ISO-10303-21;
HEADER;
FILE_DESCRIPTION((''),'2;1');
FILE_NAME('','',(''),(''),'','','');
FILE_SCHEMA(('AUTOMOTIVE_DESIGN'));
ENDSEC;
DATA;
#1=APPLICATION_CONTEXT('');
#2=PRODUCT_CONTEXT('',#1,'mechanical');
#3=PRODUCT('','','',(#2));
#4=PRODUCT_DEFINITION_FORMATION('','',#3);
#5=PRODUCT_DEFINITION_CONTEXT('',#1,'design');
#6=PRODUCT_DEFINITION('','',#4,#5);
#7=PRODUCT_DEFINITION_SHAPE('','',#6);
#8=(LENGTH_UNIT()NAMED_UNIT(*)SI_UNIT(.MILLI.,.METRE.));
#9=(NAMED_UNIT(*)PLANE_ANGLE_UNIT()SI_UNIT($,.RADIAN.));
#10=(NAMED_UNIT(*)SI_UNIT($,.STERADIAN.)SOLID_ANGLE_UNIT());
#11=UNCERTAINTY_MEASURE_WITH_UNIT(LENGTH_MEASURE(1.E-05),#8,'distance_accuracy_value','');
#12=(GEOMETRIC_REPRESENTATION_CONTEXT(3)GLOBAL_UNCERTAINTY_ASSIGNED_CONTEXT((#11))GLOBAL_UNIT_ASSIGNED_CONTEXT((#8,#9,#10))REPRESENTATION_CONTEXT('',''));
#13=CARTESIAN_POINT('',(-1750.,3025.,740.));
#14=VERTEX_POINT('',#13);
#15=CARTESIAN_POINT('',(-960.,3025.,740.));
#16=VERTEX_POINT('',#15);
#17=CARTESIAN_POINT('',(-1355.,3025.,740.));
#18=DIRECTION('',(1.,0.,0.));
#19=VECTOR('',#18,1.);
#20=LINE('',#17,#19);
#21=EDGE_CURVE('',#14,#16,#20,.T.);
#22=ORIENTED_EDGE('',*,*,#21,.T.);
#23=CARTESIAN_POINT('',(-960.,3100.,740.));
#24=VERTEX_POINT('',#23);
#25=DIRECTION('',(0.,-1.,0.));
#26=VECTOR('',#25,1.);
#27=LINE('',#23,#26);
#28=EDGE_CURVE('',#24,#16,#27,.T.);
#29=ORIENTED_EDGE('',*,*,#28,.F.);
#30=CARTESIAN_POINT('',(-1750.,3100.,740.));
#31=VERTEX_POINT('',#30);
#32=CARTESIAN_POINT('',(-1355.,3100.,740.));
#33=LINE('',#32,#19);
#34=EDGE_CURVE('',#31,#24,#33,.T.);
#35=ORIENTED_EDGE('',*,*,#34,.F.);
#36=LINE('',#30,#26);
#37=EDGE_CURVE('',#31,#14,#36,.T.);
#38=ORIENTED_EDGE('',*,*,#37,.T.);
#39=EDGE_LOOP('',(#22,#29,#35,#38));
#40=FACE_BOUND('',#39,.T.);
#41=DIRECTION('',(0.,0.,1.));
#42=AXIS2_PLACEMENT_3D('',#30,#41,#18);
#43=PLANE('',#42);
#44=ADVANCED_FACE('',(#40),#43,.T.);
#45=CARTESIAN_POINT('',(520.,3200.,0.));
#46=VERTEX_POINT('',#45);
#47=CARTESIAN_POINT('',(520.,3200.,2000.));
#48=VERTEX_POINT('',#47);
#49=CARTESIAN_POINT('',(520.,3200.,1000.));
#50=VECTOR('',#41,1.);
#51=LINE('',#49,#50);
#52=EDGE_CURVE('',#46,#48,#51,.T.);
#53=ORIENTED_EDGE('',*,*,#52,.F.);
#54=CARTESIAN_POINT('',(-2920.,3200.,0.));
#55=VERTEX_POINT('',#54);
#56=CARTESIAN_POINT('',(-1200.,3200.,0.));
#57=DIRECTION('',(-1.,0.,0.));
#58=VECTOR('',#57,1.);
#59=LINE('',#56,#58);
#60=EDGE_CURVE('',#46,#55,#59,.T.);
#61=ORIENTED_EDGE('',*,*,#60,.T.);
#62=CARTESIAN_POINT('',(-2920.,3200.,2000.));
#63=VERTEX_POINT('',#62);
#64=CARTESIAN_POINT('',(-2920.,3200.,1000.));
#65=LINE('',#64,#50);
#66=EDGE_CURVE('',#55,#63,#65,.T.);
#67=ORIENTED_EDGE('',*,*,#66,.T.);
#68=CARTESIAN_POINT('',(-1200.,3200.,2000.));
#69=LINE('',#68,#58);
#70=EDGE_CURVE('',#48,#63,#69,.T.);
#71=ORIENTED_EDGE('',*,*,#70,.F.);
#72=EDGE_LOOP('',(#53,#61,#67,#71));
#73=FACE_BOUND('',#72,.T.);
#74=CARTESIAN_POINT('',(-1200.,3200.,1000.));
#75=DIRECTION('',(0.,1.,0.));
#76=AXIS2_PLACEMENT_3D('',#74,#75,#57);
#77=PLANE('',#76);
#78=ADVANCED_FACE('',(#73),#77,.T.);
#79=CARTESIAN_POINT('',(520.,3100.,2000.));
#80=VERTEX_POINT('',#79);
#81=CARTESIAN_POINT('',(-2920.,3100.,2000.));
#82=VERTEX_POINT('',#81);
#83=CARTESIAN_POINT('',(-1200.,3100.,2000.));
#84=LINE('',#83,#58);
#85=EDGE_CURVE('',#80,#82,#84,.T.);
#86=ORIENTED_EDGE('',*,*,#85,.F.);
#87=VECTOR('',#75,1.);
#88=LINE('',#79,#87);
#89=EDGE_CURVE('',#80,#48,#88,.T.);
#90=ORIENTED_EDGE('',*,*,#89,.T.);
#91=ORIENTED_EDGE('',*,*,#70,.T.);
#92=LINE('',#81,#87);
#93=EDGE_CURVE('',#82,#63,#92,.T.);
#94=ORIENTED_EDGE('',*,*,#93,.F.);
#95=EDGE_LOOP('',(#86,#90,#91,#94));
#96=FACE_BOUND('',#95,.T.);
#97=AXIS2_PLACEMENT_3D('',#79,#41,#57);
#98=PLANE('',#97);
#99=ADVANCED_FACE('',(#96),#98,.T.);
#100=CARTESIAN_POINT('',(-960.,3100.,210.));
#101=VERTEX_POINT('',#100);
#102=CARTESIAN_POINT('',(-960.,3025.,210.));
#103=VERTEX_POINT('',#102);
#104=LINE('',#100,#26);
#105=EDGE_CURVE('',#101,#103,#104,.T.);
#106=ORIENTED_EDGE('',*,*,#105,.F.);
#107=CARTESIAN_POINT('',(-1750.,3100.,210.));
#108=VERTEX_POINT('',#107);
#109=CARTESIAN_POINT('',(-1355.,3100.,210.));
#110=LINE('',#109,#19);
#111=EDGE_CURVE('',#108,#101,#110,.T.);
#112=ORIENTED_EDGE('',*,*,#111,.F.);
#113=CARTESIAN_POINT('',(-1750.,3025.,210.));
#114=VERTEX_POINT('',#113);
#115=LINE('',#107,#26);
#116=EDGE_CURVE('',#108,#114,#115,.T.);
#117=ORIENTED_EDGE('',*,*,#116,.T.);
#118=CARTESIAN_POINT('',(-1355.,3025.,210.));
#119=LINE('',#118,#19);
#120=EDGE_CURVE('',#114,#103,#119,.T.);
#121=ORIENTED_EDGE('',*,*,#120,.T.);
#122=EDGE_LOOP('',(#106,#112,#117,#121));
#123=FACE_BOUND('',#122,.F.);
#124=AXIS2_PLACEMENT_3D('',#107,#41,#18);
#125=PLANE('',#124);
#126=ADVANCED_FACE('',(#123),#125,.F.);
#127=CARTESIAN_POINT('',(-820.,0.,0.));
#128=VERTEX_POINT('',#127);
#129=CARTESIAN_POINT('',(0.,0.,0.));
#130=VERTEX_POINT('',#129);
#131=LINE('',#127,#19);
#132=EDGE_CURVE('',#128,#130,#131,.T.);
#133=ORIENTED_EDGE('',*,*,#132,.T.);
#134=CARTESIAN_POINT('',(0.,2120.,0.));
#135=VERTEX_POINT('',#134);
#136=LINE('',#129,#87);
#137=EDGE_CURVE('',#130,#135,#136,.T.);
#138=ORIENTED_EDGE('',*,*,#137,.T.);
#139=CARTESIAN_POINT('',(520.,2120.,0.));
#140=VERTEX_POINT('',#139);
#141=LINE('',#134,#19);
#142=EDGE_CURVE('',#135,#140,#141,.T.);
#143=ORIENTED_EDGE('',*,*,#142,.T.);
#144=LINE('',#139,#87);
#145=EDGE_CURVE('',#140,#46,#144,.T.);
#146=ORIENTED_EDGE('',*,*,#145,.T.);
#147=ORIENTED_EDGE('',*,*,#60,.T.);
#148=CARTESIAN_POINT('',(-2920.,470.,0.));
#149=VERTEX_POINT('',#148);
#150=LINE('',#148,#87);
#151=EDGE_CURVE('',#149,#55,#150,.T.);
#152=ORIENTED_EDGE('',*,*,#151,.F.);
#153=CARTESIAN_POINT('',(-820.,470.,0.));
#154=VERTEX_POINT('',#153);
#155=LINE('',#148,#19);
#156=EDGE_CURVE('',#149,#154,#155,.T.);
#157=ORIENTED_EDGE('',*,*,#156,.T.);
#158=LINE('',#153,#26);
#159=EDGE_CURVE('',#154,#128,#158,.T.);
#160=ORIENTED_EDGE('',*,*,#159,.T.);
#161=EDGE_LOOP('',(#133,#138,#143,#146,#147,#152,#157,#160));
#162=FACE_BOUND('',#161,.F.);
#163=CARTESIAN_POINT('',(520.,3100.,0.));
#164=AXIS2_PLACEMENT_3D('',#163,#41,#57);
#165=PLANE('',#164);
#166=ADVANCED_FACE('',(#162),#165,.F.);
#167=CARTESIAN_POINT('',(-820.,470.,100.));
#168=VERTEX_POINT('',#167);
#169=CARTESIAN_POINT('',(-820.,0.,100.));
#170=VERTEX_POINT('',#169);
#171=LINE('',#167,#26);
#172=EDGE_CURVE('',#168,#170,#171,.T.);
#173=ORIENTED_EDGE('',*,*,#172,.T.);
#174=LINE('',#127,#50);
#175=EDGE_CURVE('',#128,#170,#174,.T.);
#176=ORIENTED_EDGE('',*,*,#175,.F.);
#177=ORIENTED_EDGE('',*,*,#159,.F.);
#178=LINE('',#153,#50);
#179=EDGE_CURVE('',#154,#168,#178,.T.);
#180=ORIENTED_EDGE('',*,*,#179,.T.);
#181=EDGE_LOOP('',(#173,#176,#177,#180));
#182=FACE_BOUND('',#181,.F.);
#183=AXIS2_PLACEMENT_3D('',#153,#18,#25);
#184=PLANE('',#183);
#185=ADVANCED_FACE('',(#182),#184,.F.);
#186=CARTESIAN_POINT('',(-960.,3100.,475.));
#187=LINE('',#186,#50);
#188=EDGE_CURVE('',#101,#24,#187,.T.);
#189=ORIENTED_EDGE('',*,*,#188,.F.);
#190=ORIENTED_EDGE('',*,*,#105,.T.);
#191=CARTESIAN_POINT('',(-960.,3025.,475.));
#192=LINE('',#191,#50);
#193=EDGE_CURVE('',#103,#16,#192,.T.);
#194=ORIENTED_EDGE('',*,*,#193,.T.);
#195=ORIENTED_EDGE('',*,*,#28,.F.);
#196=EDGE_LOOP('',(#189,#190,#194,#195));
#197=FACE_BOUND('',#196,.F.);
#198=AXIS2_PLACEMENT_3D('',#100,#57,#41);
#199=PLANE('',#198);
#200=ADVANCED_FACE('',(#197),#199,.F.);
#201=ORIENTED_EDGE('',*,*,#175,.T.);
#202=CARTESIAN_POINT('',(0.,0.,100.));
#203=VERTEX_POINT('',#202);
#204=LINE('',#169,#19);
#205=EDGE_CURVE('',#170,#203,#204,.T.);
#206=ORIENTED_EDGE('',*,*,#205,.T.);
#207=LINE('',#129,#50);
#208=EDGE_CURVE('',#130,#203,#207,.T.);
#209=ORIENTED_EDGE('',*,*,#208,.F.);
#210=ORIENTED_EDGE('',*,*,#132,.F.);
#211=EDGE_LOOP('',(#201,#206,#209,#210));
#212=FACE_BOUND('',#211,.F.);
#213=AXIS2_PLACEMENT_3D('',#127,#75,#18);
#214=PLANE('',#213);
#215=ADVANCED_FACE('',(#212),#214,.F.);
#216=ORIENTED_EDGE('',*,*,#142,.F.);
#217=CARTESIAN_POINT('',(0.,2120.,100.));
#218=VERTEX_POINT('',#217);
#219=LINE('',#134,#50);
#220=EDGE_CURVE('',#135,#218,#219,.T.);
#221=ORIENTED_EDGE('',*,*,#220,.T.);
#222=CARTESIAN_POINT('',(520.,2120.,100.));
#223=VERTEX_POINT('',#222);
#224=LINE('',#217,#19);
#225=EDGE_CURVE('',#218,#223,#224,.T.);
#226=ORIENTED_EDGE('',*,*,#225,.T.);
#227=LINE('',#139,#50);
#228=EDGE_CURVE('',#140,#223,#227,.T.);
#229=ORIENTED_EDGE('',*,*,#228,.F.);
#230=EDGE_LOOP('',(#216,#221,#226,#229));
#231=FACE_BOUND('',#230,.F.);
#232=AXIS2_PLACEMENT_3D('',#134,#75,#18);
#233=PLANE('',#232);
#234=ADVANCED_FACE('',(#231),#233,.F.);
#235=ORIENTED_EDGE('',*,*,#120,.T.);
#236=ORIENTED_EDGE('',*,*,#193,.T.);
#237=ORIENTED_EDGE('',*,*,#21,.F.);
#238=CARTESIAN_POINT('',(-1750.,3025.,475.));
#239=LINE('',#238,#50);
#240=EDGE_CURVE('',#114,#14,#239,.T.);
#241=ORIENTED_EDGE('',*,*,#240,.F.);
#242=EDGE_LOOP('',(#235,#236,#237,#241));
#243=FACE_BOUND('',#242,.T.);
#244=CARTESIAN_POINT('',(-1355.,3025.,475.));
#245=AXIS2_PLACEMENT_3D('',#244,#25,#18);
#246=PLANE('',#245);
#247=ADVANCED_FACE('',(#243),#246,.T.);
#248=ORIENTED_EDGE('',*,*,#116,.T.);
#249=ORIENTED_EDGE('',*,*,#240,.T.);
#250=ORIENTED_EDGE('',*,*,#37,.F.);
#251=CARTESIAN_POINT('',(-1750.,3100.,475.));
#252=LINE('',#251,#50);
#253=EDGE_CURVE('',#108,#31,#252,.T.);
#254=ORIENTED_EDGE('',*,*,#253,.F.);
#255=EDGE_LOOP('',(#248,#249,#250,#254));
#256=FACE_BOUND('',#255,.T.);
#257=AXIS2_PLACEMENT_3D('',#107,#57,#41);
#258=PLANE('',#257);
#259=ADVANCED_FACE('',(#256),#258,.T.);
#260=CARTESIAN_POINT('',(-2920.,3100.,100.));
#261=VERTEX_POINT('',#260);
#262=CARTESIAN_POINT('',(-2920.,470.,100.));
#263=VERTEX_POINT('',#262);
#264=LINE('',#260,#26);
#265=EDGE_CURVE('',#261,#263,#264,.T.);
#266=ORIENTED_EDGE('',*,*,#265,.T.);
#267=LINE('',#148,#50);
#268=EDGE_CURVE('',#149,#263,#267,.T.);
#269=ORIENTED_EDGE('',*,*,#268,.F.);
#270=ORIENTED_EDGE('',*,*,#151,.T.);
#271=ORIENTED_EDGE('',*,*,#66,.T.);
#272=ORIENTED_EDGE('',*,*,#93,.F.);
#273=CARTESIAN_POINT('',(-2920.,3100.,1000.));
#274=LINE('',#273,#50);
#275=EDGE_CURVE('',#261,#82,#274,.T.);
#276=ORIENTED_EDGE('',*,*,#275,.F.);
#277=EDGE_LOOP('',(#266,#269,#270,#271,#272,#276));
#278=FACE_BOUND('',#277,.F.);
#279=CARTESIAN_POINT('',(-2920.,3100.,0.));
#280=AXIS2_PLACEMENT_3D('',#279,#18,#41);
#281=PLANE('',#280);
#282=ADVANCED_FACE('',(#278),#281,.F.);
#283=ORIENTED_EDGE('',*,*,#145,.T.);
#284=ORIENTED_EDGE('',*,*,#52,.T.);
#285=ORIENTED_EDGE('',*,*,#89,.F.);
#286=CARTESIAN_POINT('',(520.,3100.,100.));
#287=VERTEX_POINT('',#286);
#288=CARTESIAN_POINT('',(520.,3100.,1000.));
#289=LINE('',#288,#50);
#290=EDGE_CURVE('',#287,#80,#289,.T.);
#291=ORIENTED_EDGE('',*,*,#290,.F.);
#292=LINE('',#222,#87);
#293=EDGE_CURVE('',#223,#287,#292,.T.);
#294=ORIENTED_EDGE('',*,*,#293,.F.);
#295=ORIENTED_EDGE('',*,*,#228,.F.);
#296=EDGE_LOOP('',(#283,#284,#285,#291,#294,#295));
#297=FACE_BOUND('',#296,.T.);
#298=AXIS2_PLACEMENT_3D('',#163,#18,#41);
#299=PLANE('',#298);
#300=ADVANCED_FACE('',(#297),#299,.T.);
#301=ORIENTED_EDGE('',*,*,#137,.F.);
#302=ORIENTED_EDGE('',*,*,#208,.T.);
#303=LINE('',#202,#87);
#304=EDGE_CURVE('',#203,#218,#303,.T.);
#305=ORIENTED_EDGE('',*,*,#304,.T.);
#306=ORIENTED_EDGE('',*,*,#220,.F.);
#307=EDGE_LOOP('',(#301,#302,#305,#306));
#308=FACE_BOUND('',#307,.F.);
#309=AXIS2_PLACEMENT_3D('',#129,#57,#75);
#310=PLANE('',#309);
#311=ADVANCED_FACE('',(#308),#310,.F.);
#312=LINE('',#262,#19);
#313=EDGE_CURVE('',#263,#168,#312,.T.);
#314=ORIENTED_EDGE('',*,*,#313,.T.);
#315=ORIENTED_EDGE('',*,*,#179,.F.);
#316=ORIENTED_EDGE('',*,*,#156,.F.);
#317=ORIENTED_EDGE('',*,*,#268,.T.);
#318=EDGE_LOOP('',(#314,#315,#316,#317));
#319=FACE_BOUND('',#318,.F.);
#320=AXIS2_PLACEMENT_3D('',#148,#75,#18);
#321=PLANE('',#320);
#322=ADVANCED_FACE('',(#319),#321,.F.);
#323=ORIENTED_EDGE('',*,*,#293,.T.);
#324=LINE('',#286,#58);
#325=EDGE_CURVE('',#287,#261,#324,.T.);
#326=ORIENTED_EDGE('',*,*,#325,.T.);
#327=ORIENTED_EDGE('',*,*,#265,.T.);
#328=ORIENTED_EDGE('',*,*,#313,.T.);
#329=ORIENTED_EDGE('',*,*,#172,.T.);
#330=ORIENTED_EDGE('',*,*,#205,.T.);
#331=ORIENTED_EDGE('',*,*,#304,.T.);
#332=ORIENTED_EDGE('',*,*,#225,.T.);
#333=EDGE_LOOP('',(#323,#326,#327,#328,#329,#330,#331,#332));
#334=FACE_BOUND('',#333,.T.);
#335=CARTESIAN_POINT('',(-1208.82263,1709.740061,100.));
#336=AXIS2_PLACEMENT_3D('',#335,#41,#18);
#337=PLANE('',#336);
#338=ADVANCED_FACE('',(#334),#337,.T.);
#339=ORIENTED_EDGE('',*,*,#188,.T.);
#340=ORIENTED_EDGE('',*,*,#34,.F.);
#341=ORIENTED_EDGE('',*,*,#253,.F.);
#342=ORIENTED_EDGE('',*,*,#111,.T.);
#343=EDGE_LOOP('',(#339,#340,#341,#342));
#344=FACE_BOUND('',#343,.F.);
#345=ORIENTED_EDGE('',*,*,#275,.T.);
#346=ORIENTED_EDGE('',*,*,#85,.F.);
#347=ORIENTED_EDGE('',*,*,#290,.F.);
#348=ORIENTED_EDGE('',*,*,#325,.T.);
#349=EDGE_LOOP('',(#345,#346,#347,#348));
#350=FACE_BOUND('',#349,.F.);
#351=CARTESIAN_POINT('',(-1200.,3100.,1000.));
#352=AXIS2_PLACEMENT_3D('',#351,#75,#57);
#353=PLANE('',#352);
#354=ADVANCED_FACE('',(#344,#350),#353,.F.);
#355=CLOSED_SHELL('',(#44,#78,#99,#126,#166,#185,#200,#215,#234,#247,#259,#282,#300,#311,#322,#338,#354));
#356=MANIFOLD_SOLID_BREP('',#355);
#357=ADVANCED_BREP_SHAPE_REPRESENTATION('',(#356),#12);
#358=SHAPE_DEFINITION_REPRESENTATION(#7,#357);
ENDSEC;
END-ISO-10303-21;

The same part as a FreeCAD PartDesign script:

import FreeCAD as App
import Part
import Sketcher

V = App.Vector


def add_polygon(sketch, points):
    """Adds a closed chain of lines whose ends are joined by coincident constraints."""
    first, n = sketch.GeometryCount, len(points)
    for a, b in zip(points, points[1:] + points[:1]):
        sketch.addGeometry(Part.LineSegment(App.Vector(*a, 0), App.Vector(*b, 0)), False)
    for i in range(n):
        sketch.addConstraint(Sketcher.Constraint("Coincident", first + i, 2, first + (i + 1) % n, 1))

doc = App.newDocument("Part")
params = doc.addObject("Spreadsheet::Sheet", "Params")
for row, (alias, value) in enumerate([
    ("sketch1_width", "820 mm"),
    ("sketch1_width2", "520 mm"),
    ("sketch1_width3", "3440 mm"),
    ("sketch1_height", "2120 mm"),
    ("sketch1_height2", "980 mm"),
    ("pad1_length", "100 mm"),
    ("sketch2_width", "3440 mm"),
    ("sketch2_height", "2000 mm"),
    ("pad2_length", "100 mm"),
    ("sketch3_width", "790 mm"),
    ("sketch3_height", "530 mm"),
    ("pad3_length", "75 mm"),
], start=1):
    params.set(f"A{row}", alias)
    params.set(f"B{row}", "=" + value)
    params.setAlias(f"B{row}", alias)

body = doc.addObject("PartDesign::Body", "Body")

# Sketch on XY plane
sketch1 = body.newObject("Sketcher::SketchObject", "Sketch")
sketch1.AttachmentSupport = (doc.getObject("XY_Plane"), [""])
sketch1.MapMode = "FlatFace"
add_polygon(sketch1, [(-820, 0), (0, 0), (0, 2120), (520, 2120), (520, 3100), (-2920, 3100), (-2920, 470), (-820, 470)])  # lines 0-7
sketch1.addConstraint([
    Sketcher.Constraint("Horizontal", 0),
    Sketcher.Constraint("Vertical", 1),
    Sketcher.Constraint("Horizontal", 2),
    Sketcher.Constraint("Vertical", 3),
    Sketcher.Constraint("Horizontal", 4),
    Sketcher.Constraint("Vertical", 5),
    Sketcher.Constraint("Horizontal", 6),
    Sketcher.Constraint("Vertical", 7),
    Sketcher.Constraint("Coincident", 0, 2, -1, 1),
    Sketcher.Constraint("DistanceX", 0, 1, 0, 2, 820.0),
    Sketcher.Constraint("DistanceX", 2, 1, 2, 2, 520.0),
    Sketcher.Constraint("DistanceX", 4, 2, 4, 1, 3440.0),
    Sketcher.Constraint("DistanceY", 1, 1, 1, 2, 2120.0),
    Sketcher.Constraint("DistanceY", 3, 1, 3, 2, 980.0),
    Sketcher.Constraint("DistanceY", 5, 2, 5, 1, 2630.0),
])
sketch1.setExpression("Constraints[17]", "Params.sketch1_width")
sketch1.setExpression("Constraints[18]", "Params.sketch1_width2")
sketch1.setExpression("Constraints[19]", "Params.sketch1_width3")
sketch1.setExpression("Constraints[20]", "Params.sketch1_height")
sketch1.setExpression("Constraints[21]", "Params.sketch1_height2")
pad1 = body.newObject("PartDesign::Pad", "Pad")
pad1.Profile = sketch1
pad1.setExpression("Length", "Params.pad1_length")

# Sketch on XZ plane
sketch2 = body.newObject("Sketcher::SketchObject", "Sketch001")
sketch2.AttachmentSupport = (doc.getObject("XZ_Plane"), [""])
sketch2.MapMode = "FlatFace"
sketch2.AttachmentOffset = App.Placement(V(0, 0, -3100), App.Rotation())
add_polygon(sketch2, [(520, 2000), (520, 0), (-2920, 0), (-2920, 2000)])  # lines 0-3
sketch2.addConstraint([
    Sketcher.Constraint("Vertical", 0),
    Sketcher.Constraint("Horizontal", 1),
    Sketcher.Constraint("Vertical", 2),
    Sketcher.Constraint("Horizontal", 3),
    Sketcher.Constraint("PointOnObject", 0, 2, -1),
    Sketcher.Constraint("DistanceX", 1, 2, 1, 1, 3440.0),
    Sketcher.Constraint("DistanceY", 0, 2, 0, 1, 2000.0),
    Sketcher.Constraint("DistanceX", -1, 1, 0, 2, 520.0),
])
sketch2.setExpression("Constraints[9]", "Params.sketch2_width")
sketch2.setExpression("Constraints[10]", "Params.sketch2_height")
pad2 = body.newObject("PartDesign::Pad", "Pad001")
pad2.Profile = sketch2
pad2.setExpression("Length", "Params.pad2_length")
pad2.Reversed = True

# Sketch on XZ plane
sketch3 = body.newObject("Sketcher::SketchObject", "Sketch002")
sketch3.AttachmentSupport = (doc.getObject("XZ_Plane"), [""])
sketch3.MapMode = "FlatFace"
sketch3.AttachmentOffset = App.Placement(V(0, 0, -3100), App.Rotation())
add_polygon(sketch3, [(-1750, 740), (-1750, 210), (-960, 210), (-960, 740)])  # lines 0-3
sketch3.addConstraint([
    Sketcher.Constraint("Vertical", 0),
    Sketcher.Constraint("Horizontal", 1),
    Sketcher.Constraint("Vertical", 2),
    Sketcher.Constraint("Horizontal", 3),
    Sketcher.Constraint("DistanceX", 1, 1, 1, 2, 790.0),
    Sketcher.Constraint("DistanceY", 0, 2, 0, 1, 530.0),
    Sketcher.Constraint("DistanceX", 0, 2, -1, 1, 1750.0),
    Sketcher.Constraint("DistanceY", -1, 1, 0, 2, 210.0),
])
sketch3.setExpression("Constraints[8]", "Params.sketch3_width")
sketch3.setExpression("Constraints[9]", "Params.sketch3_height")
pad3 = body.newObject("PartDesign::Pad", "Pad002")
pad3.Profile = sketch3
pad3.setExpression("Length", "Params.pad3_length")

doc.recompute()
